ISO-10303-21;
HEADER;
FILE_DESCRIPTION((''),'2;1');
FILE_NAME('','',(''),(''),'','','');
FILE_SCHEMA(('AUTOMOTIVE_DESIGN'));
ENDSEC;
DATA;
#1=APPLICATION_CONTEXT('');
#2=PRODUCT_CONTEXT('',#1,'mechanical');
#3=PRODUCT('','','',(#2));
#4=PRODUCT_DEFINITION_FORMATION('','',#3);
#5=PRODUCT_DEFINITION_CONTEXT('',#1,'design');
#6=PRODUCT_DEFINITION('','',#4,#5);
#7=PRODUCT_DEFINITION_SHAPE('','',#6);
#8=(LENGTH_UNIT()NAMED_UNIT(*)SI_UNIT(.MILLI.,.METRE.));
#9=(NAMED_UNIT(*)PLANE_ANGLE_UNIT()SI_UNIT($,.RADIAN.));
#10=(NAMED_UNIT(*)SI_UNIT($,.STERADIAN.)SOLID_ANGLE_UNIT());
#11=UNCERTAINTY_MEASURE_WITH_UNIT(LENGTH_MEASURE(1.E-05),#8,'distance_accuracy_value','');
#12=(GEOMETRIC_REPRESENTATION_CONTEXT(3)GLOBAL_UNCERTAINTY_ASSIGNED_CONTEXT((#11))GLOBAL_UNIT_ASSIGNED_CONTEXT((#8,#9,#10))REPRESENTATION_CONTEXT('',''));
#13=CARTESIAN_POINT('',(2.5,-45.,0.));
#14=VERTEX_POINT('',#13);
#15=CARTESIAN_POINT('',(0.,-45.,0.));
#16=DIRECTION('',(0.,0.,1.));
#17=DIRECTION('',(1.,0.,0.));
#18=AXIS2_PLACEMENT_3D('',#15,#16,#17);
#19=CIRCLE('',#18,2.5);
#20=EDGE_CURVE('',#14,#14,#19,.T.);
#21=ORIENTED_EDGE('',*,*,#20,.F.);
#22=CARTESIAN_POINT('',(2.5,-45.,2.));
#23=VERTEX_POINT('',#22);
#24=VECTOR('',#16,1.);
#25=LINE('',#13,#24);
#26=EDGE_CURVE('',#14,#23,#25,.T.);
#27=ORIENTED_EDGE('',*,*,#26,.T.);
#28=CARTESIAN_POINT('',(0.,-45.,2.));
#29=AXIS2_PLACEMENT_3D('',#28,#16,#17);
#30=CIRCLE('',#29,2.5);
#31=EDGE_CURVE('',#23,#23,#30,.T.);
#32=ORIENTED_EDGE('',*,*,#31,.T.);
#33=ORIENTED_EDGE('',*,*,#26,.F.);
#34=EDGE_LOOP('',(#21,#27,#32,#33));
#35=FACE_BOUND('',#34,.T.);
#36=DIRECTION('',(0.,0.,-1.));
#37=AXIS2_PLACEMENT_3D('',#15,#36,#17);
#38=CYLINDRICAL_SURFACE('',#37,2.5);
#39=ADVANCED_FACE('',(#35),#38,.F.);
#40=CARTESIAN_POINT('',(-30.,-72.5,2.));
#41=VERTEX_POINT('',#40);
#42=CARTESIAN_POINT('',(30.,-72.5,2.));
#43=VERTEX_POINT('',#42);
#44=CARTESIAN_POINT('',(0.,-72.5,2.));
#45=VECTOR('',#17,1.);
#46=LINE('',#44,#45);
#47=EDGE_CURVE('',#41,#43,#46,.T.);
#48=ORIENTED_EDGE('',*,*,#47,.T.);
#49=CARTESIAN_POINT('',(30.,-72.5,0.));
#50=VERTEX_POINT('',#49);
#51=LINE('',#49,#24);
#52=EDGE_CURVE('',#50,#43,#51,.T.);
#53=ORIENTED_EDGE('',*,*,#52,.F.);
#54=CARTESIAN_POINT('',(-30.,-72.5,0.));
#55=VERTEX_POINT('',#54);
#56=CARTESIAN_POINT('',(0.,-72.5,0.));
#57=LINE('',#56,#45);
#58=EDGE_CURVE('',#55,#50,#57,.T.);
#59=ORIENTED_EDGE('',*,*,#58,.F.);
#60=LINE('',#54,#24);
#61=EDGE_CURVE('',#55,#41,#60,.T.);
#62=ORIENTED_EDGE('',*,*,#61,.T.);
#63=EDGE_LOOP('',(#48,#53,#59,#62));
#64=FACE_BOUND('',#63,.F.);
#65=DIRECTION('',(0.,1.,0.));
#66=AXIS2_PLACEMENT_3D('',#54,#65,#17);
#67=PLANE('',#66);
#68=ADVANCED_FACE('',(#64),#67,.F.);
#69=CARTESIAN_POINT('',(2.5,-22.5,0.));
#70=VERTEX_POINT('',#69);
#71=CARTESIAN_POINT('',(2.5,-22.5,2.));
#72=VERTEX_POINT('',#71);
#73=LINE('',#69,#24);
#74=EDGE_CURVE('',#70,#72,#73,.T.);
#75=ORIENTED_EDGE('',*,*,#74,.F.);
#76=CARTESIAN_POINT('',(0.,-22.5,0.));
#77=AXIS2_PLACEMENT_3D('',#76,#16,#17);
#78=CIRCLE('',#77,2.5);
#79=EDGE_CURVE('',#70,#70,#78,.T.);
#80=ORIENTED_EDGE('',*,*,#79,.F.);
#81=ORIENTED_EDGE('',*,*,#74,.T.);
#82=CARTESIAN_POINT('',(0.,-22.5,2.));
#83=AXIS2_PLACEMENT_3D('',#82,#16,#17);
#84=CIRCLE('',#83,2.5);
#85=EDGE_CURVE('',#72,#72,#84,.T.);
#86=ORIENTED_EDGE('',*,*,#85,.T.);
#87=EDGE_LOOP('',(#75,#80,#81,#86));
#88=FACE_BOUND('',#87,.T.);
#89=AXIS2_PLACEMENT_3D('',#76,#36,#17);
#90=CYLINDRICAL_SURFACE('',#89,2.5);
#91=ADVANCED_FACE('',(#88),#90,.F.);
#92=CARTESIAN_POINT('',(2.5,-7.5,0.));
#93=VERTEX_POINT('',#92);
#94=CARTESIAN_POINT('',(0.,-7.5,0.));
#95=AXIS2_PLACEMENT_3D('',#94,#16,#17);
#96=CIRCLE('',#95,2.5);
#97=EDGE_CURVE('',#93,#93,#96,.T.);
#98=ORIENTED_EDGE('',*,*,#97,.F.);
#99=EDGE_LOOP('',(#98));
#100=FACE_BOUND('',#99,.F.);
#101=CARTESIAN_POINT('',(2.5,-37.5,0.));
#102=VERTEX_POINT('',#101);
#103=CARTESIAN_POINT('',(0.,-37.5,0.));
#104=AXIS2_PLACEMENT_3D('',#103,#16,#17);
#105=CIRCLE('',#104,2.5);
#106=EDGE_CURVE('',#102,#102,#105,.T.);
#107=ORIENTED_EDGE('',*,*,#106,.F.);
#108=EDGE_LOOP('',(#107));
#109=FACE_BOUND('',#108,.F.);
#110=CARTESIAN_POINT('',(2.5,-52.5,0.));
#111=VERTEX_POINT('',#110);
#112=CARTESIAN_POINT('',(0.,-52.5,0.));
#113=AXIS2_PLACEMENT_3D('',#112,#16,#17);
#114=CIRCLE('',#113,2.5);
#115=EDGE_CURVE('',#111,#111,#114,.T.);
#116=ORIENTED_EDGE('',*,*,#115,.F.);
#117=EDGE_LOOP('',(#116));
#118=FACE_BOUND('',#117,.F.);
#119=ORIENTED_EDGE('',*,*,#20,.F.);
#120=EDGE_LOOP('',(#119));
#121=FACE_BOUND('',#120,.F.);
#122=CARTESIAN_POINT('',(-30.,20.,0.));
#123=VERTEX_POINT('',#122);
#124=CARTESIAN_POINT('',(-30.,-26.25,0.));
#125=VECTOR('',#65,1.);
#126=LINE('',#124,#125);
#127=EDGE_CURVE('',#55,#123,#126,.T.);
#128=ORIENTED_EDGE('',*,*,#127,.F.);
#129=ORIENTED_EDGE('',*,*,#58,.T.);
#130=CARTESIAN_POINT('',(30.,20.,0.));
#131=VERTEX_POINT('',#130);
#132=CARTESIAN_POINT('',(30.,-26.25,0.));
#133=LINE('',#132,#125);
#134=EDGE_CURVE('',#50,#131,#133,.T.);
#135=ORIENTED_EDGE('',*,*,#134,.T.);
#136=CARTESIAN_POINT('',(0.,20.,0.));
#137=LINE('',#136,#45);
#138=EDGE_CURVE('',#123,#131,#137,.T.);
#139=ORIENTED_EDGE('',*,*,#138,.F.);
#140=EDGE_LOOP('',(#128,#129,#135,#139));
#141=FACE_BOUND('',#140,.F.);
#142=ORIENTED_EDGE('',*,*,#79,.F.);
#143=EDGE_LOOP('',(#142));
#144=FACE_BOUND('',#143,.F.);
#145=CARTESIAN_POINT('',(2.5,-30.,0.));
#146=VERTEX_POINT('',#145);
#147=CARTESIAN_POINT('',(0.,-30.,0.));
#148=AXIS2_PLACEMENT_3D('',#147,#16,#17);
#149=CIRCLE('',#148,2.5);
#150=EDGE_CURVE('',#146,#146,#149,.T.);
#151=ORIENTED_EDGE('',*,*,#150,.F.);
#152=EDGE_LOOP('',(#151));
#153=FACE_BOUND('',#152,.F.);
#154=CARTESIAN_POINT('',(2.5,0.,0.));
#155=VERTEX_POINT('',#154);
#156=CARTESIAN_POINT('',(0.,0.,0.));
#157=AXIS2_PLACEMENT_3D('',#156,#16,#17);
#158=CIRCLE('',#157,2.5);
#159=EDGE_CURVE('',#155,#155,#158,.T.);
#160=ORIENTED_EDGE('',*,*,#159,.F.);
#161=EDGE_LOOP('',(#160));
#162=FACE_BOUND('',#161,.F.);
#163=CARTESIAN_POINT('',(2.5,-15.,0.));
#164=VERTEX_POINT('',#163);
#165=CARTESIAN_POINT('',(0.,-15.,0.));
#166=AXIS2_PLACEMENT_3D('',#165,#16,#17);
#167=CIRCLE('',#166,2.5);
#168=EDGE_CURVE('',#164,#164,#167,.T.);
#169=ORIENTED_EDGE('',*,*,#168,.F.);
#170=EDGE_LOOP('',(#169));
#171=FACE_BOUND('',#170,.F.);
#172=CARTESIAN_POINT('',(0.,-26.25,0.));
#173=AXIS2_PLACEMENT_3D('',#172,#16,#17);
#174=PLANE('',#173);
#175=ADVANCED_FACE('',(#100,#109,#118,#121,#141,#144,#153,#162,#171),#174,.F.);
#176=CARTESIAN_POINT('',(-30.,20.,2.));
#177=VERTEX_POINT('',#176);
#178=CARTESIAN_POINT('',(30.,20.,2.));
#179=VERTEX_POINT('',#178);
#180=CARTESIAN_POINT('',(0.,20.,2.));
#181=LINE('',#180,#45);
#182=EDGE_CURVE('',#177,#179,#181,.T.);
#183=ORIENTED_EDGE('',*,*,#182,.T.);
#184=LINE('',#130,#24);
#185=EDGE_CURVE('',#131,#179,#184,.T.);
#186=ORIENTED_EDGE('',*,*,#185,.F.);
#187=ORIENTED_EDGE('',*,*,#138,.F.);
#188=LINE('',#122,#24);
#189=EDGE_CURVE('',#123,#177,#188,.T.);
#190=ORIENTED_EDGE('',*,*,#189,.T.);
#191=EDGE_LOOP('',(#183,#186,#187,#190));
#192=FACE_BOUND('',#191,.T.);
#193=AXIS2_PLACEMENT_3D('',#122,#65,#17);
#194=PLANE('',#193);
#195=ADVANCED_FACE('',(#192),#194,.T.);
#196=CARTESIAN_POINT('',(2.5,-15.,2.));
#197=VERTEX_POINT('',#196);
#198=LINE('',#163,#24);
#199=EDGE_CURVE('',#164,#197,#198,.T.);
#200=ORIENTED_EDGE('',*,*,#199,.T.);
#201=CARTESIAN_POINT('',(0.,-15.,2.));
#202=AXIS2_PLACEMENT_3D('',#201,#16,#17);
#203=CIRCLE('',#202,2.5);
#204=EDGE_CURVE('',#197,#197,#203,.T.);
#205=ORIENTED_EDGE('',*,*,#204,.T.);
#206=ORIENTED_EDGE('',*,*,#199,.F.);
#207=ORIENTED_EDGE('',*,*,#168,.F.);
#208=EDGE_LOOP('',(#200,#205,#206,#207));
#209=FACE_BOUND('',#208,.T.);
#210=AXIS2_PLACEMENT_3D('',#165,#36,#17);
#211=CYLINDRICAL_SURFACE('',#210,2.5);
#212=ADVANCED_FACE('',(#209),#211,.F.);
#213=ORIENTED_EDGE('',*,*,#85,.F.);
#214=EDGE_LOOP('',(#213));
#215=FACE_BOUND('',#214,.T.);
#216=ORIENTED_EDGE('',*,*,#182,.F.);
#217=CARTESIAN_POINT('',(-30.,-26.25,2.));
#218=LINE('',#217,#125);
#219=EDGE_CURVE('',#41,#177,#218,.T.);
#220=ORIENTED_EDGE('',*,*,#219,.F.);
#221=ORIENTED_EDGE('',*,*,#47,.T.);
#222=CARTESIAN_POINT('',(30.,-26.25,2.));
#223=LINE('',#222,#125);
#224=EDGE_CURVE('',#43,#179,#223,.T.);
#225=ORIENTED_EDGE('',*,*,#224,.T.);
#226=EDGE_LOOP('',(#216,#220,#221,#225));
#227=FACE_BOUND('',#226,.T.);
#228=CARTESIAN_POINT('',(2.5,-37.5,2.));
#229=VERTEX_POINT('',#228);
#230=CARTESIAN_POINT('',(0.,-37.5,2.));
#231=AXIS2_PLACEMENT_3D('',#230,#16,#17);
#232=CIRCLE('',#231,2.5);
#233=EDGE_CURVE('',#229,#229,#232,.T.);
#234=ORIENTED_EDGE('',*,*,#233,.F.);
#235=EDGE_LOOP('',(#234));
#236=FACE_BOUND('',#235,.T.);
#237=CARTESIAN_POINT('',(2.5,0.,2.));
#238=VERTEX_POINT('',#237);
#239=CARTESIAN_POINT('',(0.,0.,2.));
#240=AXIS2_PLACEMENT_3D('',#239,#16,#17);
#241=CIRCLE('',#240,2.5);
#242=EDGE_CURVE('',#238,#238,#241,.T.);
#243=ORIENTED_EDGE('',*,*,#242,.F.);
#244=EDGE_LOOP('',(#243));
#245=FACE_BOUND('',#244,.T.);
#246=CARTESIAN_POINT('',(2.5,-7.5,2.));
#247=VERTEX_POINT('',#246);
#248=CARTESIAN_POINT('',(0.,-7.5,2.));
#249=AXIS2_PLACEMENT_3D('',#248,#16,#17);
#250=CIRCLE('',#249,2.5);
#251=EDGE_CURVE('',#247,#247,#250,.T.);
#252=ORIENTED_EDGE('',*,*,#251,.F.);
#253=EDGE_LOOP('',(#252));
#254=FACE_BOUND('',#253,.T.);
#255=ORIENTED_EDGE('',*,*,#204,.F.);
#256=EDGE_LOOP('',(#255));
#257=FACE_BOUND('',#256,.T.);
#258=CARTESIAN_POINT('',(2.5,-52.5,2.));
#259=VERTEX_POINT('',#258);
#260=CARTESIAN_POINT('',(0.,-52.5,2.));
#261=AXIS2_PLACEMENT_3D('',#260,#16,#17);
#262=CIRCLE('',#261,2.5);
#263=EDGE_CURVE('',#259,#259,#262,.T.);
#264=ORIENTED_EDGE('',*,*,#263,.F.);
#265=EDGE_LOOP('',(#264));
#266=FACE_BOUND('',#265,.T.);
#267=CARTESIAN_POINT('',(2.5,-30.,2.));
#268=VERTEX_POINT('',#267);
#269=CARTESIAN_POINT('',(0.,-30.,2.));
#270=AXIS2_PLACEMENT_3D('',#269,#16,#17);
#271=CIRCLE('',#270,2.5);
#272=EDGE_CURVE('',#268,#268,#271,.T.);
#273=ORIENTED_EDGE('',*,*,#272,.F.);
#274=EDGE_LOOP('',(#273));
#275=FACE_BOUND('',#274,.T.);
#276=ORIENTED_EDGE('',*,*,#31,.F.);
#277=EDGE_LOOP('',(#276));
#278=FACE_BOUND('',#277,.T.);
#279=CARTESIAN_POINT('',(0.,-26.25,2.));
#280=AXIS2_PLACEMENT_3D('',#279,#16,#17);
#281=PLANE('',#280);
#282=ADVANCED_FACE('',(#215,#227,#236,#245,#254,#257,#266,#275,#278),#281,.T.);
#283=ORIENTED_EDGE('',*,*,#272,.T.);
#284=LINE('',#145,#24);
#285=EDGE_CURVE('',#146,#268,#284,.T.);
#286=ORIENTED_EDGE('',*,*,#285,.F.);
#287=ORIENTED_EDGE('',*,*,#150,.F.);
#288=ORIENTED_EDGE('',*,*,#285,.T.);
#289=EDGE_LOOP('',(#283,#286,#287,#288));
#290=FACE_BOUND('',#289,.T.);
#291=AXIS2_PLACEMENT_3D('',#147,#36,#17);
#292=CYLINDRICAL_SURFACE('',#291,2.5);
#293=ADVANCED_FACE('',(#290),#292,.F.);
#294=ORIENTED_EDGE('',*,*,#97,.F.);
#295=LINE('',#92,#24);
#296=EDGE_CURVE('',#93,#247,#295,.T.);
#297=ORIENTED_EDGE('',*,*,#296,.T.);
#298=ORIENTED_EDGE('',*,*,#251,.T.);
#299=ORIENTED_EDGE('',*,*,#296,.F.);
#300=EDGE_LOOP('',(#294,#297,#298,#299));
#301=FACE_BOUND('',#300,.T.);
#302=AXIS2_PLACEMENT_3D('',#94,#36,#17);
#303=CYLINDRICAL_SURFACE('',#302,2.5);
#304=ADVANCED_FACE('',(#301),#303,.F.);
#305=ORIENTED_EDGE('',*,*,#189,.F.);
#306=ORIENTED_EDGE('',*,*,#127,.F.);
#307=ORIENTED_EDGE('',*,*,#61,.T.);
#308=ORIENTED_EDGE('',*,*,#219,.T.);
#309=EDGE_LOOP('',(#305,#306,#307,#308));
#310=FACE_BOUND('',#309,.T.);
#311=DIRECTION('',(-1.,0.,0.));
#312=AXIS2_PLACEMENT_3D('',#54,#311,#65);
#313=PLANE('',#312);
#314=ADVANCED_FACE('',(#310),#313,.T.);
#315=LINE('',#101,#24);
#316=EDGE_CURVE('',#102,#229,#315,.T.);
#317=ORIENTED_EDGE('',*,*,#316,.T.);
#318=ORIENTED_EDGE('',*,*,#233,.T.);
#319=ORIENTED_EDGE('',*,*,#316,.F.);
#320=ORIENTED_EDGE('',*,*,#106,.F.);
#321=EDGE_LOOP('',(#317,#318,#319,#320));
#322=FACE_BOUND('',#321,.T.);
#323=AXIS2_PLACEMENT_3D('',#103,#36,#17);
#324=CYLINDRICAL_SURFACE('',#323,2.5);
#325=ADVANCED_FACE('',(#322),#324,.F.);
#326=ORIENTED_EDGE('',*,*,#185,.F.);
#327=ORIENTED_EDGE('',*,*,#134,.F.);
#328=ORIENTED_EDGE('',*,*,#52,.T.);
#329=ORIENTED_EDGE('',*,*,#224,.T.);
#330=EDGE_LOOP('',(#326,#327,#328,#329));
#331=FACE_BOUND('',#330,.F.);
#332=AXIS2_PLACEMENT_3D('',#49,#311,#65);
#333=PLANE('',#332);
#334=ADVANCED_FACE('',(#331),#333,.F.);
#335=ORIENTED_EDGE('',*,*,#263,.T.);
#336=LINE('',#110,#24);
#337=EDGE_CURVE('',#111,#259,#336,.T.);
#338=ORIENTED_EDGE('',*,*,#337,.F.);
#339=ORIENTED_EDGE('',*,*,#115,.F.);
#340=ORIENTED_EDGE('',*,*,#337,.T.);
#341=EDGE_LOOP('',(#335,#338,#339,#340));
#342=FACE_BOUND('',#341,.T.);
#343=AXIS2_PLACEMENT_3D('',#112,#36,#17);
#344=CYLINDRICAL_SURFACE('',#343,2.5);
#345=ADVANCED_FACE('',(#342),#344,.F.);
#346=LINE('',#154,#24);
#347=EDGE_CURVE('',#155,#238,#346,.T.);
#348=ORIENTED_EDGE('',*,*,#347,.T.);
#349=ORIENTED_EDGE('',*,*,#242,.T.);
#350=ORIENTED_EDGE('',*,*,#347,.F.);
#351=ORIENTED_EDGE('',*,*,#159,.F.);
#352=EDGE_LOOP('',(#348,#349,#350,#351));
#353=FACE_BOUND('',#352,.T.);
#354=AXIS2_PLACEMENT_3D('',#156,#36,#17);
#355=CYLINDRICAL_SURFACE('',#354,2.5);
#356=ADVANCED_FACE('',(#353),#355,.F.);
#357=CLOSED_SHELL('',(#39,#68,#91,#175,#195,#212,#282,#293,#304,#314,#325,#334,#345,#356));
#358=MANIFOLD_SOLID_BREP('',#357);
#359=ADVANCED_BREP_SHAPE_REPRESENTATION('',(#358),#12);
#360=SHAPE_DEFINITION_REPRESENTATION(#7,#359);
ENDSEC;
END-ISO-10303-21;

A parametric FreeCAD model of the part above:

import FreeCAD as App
import Part
import Sketcher


def add_polygon(sketch, points):
    """Adds a closed chain of lines whose ends are joined by coincident constraints."""
    first, n = sketch.GeometryCount, len(points)
    for a, b in zip(points, points[1:] + points[:1]):
        sketch.addGeometry(Part.LineSegment(App.Vector(*a, 0), App.Vector(*b, 0)), False)
    for i in range(n):
        sketch.addConstraint(Sketcher.Constraint("Coincident", first + i, 2, first + (i + 1) % n, 1))

doc = App.newDocument("Part")
body = doc.addObject("PartDesign::Body", "Body")

# Sketch on XY plane
sketch1 = body.newObject("Sketcher::SketchObject", "Sketch")
sketch1.AttachmentSupport = (doc.getObject("XY_Plane"), [""])
sketch1.MapMode = "FlatFace"
add_polygon(sketch1, [(-30, 20), (-30, -72.5), (30, -72.5), (30, 20)])  # lines 0-3
sketch1.addGeometry(Part.Circle(App.Vector(0, -52.5, 0), App.Vector(0, 0, 1), 2.5), False)  # 4
sketch1.addGeometry(Part.Circle(App.Vector(0, -45, 0), App.Vector(0, 0, 1), 2.5), False)  # 5
sketch1.addGeometry(Part.Circle(App.Vector(0, -37.5, 0), App.Vector(0, 0, 1), 2.5), False)  # 6
sketch1.addGeometry(Part.Circle(App.Vector(0, -30, 0), App.Vector(0, 0, 1), 2.5), False)  # 7
sketch1.addGeometry(Part.Circle(App.Vector(0, -22.5, 0), App.Vector(0, 0, 1), 2.5), False)  # 8
sketch1.addGeometry(Part.Circle(App.Vector(0, -15, 0), App.Vector(0, 0, 1), 2.5), False)  # 9
sketch1.addGeometry(Part.Circle(App.Vector(0, -7.5, 0), App.Vector(0, 0, 1), 2.5), False)  # 10
sketch1.addGeometry(Part.Circle(App.Vector(0, 0, 0), App.Vector(0, 0, 1), 2.5), False)  # 11
sketch1.addConstraint(Sketcher.Constraint("Vertical", 0))
sketch1.addConstraint(Sketcher.Constraint("Horizontal", 1))
sketch1.addConstraint(Sketcher.Constraint("Vertical", 2))
sketch1.addConstraint(Sketcher.Constraint("Horizontal", 3))
sketch1.addConstraint(Sketcher.Constraint("Coincident", 11, 3, -1, 1))
sketch1.addConstraint(Sketcher.Constraint("Equal", 4, 5))
sketch1.addConstraint(Sketcher.Constraint("Equal", 5, 6))
sketch1.addConstraint(Sketcher.Constraint("Equal", 6, 7))
sketch1.addConstraint(Sketcher.Constraint("Equal", 7, 8))
sketch1.addConstraint(Sketcher.Constraint("Equal", 8, 9))
sketch1.addConstraint(Sketcher.Constraint("Equal", 9, 10))
sketch1.addConstraint(Sketcher.Constraint("Equal", 10, 11))
sketch1.addConstraint(Sketcher.Constraint("PointOnObject", 4, 3, -2))
sketch1.addConstraint(Sketcher.Constraint("PointOnObject", 5, 3, -2))
sketch1.addConstraint(Sketcher.Constraint("PointOnObject", 6, 3, -2))
sketch1.addConstraint(Sketcher.Constraint("PointOnObject", 7, 3, -2))
sketch1.addConstraint(Sketcher.Constraint("PointOnObject", 8, 3, -2))
sketch1.addConstraint(Sketcher.Constraint("PointOnObject", 9, 3, -2))
sketch1.addConstraint(Sketcher.Constraint("PointOnObject", 10, 3, -2))
sketch1.addConstraint(Sketcher.Constraint("Diameter", 4, 5.0))
sketch1.addConstraint(Sketcher.Constraint("DistanceX", 1, 1, 1, 2, 60.0))
sketch1.addConstraint(Sketcher.Constraint("DistanceY", 0, 2, 0, 1, 92.5))
sketch1.addConstraint(Sketcher.Constraint("DistanceY", 5, 3, -1, 1, 45.0))
sketch1.addConstraint(Sketcher.Constraint("DistanceY", 7, 3, -1, 1, 30.0))
sketch1.addConstraint(Sketcher.Constraint("DistanceY", 9, 3, -1, 1, 15.0))
sketch1.addConstraint(Sketcher.Constraint("DistanceX", 0, 2, -1, 1, 30.0))
sketch1.addConstraint(Sketcher.Constraint("DistanceY", -1, 1, 2, 2, 20.0))
sketch1.addConstraint(Sketcher.Constraint("DistanceY", 4, 3, 6, 3, 15.0))
sketch1.addConstraint(Sketcher.Constraint("DistanceY", 6, 3, 8, 3, 15.0))
sketch1.addConstraint(Sketcher.Constraint("DistanceY", 8, 3, 10, 3, 15.0))
sketch1.addConstraint(Sketcher.Constraint("DistanceY", 0, 2, 4, 3, 20.0))
pad1 = body.newObject("PartDesign::Pad", "Pad")
pad1.Profile = sketch1
pad1.Length = 2

doc.recompute()
